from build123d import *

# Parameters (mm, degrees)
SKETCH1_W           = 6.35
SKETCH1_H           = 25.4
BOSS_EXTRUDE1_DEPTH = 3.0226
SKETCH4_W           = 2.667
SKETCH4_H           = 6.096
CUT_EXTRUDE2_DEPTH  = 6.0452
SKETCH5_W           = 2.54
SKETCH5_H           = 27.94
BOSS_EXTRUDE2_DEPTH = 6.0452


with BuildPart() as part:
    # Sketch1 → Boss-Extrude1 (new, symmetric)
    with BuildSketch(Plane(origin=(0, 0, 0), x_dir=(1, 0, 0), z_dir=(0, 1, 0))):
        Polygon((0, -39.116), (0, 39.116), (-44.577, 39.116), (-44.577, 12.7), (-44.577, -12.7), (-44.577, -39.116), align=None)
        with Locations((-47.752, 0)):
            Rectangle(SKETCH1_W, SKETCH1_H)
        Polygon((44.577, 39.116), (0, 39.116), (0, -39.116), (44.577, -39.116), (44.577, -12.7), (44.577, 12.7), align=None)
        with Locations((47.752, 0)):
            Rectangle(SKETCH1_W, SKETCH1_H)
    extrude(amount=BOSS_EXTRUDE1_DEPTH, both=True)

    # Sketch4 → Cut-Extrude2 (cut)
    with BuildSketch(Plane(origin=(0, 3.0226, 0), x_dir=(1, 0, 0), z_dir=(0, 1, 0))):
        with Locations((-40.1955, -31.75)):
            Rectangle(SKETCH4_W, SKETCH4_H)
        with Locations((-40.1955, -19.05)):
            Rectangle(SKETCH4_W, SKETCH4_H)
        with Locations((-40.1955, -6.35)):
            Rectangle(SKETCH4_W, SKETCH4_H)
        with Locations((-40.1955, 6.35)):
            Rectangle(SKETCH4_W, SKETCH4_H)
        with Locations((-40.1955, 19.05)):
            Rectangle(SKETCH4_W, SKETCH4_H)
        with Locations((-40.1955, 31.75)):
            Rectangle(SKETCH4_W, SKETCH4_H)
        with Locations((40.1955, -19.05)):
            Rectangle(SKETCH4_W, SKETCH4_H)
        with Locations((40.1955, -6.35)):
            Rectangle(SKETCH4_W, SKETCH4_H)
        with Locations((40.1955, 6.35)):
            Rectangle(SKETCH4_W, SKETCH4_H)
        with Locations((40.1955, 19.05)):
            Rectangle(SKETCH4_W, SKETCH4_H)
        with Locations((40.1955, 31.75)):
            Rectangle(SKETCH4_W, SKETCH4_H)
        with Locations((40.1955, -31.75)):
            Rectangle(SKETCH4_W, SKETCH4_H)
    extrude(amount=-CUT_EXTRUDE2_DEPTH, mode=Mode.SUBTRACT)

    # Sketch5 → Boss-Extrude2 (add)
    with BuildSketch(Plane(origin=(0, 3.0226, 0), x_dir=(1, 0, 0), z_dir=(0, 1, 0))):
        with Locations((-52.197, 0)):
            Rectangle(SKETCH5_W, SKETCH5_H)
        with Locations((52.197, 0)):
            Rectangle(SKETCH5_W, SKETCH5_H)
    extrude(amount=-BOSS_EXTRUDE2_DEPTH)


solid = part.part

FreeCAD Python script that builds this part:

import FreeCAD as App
import Part
import Sketcher

V = App.Vector
Q = App.Units.Quantity

doc = App.newDocument("Part")
body = doc.addObject("PartDesign::Body", "Body")

# Sketch on XZ plane
sketch1 = body.newObject("Sketcher::SketchObject", "Sketch")
sketch1.AttachmentSupport = (doc.getObject("XZ_Plane"), [""])
sketch1.MapMode = "FlatFace"
sketch1.addGeometry(Part.LineSegment(V(-45, -39, 0), V(-45, -13, 0)), False)
sketch1.addGeometry(Part.LineSegment(V(-45, -13, 0), V(-51, -13, 0)), False)
sketch1.addGeometry(Part.LineSegment(V(-51, -13, 0), V(-51, 13, 0)), False)
sketch1.addGeometry(Part.LineSegment(V(-51, 13, 0), V(-45, 13, 0)), False)
sketch1.addGeometry(Part.LineSegment(V(-45, 13, 0), V(-45, 39, 0)), False)
sketch1.addGeometry(Part.LineSegment(V(-45, 39, 0), V(45, 39, 0)), False)
sketch1.addGeometry(Part.LineSegment(V(45, 39, 0), V(45, 13, 0)), False)
sketch1.addGeometry(Part.LineSegment(V(45, 13, 0), V(51, 13, 0)), False)
sketch1.addGeometry(Part.LineSegment(V(51, 13, 0), V(51, -13, 0)), False)
sketch1.addGeometry(Part.LineSegment(V(51, -13, 0), V(45, -13, 0)), False)
sketch1.addGeometry(Part.LineSegment(V(45, -13, 0), V(45, -39, 0)), False)
sketch1.addGeometry(Part.LineSegment(V(45, -39, 0), V(-45, -39, 0)), False)
sketch1.addConstraint(Sketcher.Constraint("Coincident", 0, 2, 1, 1))
sketch1.addConstraint(Sketcher.Constraint("Coincident", 1, 2, 2, 1))
sketch1.addConstraint(Sketcher.Constraint("Coincident", 2, 2, 3, 1))
sketch1.addConstraint(Sketcher.Constraint("Coincident", 3, 2, 4, 1))
sketch1.addConstraint(Sketcher.Constraint("Coincident", 4, 2, 5, 1))
sketch1.addConstraint(Sketcher.Constraint("Coincident", 5, 2, 6, 1))
sketch1.addConstraint(Sketcher.Constraint("Coincident", 6, 2, 7, 1))
sketch1.addConstraint(Sketcher.Constraint("Coincident", 7, 2, 8, 1))
sketch1.addConstraint(Sketcher.Constraint("Coincident", 8, 2, 9, 1))
sketch1.addConstraint(Sketcher.Constraint("Coincident", 9, 2, 10, 1))
sketch1.addConstraint(Sketcher.Constraint("Coincident", 10, 2, 11, 1))
sketch1.addConstraint(Sketcher.Constraint("Coincident", 11, 2, 0, 1))
sketch1.addConstraint(Sketcher.Constraint("Vertical", 0))
sketch1.addConstraint(Sketcher.Constraint("Horizontal", 1))
sketch1.addConstraint(Sketcher.Constraint("Vertical", 2))
sketch1.addConstraint(Sketcher.Constraint("Horizontal", 3))
sketch1.addConstraint(Sketcher.Constraint("Vertical", 4))
sketch1.addConstraint(Sketcher.Constraint("Horizontal", 5))
sketch1.addConstraint(Sketcher.Constraint("Vertical", 6))
sketch1.addConstraint(Sketcher.Constraint("Horizontal", 7))
sketch1.addConstraint(Sketcher.Constraint("Vertical", 8))
sketch1.addConstraint(Sketcher.Constraint("Horizontal", 9))
sketch1.addConstraint(Sketcher.Constraint("Vertical", 10))
sketch1.addConstraint(Sketcher.Constraint("Horizontal", 11))
sketch1.addConstraint(Sketcher.Constraint("Symmetric", 0, 2, 6, 2, -1, 1))
sketch1.addConstraint(Sketcher.Constraint("Symmetric", 2, 2, 8, 2, -1, 1))
sketch1.addConstraint(Sketcher.Constraint("Symmetric", 4, 2, 10, 2, -1, 1))
sketch1.addConstraint(Sketcher.Constraint("Symmetric", 3, 2, 6, 2, -2))
sketch1.addConstraint(Sketcher.Constraint("DistanceY", 2, 1, 2, 2, Q("1 in")))
sketch1.addConstraint(Sketcher.Constraint("DistanceX", 1, 2, 1, 1, Q("0.25 in")))
sketch1.addConstraint(Sketcher.Constraint("DistanceX", 5, 1, 5, 2, Q("3.51 in")))
sketch1.addConstraint(Sketcher.Constraint("DistanceY", 0, 1, 0, 2, Q("1.04 in")))
pad1 = body.newObject("PartDesign::Pad", "Pad")
pad1.Profile = sketch1
pad1.Length = Q("0.238 in")
pad1.Midplane = True

# Sketch on XZ plane
sketch2 = body.newObject("Sketcher::SketchObject", "Sketch001")
sketch2.AttachmentSupport = (doc.getObject("XZ_Plane"), [""])
sketch2.MapMode = "FlatFace"
sketch2.AttachmentOffset = App.Placement(V(0, 0, -0.119 * 25.4), App.Rotation())
sketch2.addGeometry(Part.LineSegment(V(-41.5, 28.7, 0), V(-41.5, 34.8, 0)), False)
sketch2.addGeometry(Part.LineSegment(V(-41.5, 34.8, 0), V(-38.9, 34.8, 0)), False)
sketch2.addGeometry(Part.LineSegment(V(-38.9, 34.8, 0), V(-38.9, 28.7, 0)), False)
sketch2.addGeometry(Part.LineSegment(V(-38.9, 28.7, 0), V(-41.5, 28.7, 0)), False)
sketch2.addGeometry(Part.LineSegment(V(-41.5, 16, 0), V(-41.5, 22.1, 0)), False)
sketch2.addGeometry(Part.LineSegment(V(-41.5, 22.1, 0), V(-38.9, 22.1, 0)), False)
sketch2.addGeometry(Part.LineSegment(V(-38.9, 22.1, 0), V(-38.9, 16, 0)), False)
sketch2.addGeometry(Part.LineSegment(V(-38.9, 16, 0), V(-41.5, 16, 0)), False)
sketch2.addGeometry(Part.LineSegment(V(-41.5, 3.3, 0), V(-41.5, 9.4, 0)), False)
sketch2.addGeometry(Part.LineSegment(V(-41.5, 9.4, 0), V(-38.9, 9.4, 0)), False)
sketch2.addGeometry(Part.LineSegment(V(-38.9, 9.4, 0), V(-38.9, 3.3, 0)), False)
sketch2.addGeometry(Part.LineSegment(V(-38.9, 3.3, 0), V(-41.5, 3.3, 0)), False)
sketch2.addGeometry(Part.LineSegment(V(-41.5, -9.4, 0), V(-41.5, -3.3, 0)), False)
sketch2.addGeometry(Part.LineSegment(V(-41.5, -3.3, 0), V(-38.9, -3.3, 0)), False)
sketch2.addGeometry(Part.LineSegment(V(-38.9, -3.3, 0), V(-38.9, -9.4, 0)), False)
sketch2.addGeometry(Part.LineSegment(V(-38.9, -9.4, 0), V(-41.5, -9.4, 0)), False)
sketch2.addGeometry(Part.LineSegment(V(-41.5, -22.1, 0), V(-41.5, -16, 0)), False)
sketch2.addGeometry(Part.LineSegment(V(-41.5, -16, 0), V(-38.9, -16, 0)), False)
sketch2.addGeometry(Part.LineSegment(V(-38.9, -16, 0), V(-38.9, -22.1, 0)), False)
sketch2.addGeometry(Part.LineSegment(V(-38.9, -22.1, 0), V(-41.5, -22.1, 0)), False)
sketch2.addGeometry(Part.LineSegment(V(-41.5, -34.8, 0), V(-41.5, -28.7, 0)), False)
sketch2.addGeometry(Part.LineSegment(V(-41.5, -28.7, 0), V(-38.9, -28.7, 0)), False)
sketch2.addGeometry(Part.LineSegment(V(-38.9, -28.7, 0), V(-38.9, -34.8, 0)), False)
sketch2.addGeometry(Part.LineSegment(V(-38.9, -34.8, 0), V(-41.5, -34.8, 0)), False)
sketch2.addGeometry(Part.LineSegment(V(38.9, 16, 0), V(38.9, 22.1, 0)), False)
sketch2.addGeometry(Part.LineSegment(V(38.9, 22.1, 0), V(41.5, 22.1, 0)), False)
sketch2.addGeometry(Part.LineSegment(V(41.5, 22.1, 0), V(41.5, 16, 0)), False)
sketch2.addGeometry(Part.LineSegment(V(41.5, 16, 0), V(38.9, 16, 0)), False)
sketch2.addGeometry(Part.LineSegment(V(38.9, 3.3, 0), V(38.9, 9.4, 0)), False)
sketch2.addGeometry(Part.LineSegment(V(38.9, 9.4, 0), V(41.5, 9.4, 0)), False)
sketch2.addGeometry(Part.LineSegment(V(41.5, 9.4, 0), V(41.5, 3.3, 0)), False)
sketch2.addGeometry(Part.LineSegment(V(41.5, 3.3, 0), V(38.9, 3.3, 0)), False)
sketch2.addGeometry(Part.LineSegment(V(38.9, -9.4, 0), V(38.9, -3.3, 0)), False)
sketch2.addGeometry(Part.LineSegment(V(38.9, -3.3, 0), V(41.5, -3.3, 0)), False)
sketch2.addGeometry(Part.LineSegment(V(41.5, -3.3, 0), V(41.5, -9.4, 0)), False)
sketch2.addGeometry(Part.LineSegment(V(41.5, -9.4, 0), V(38.9, -9.4, 0)), False)
sketch2.addGeometry(Part.LineSegment(V(38.9, -22.1, 0), V(38.9, -16, 0)), False)
sketch2.addGeometry(Part.LineSegment(V(38.9, -16, 0), V(41.5, -16, 0)), False)
sketch2.addGeometry(Part.LineSegment(V(41.5, -16, 0), V(41.5, -22.1, 0)), False)
sketch2.addGeometry(Part.LineSegment(V(41.5, -22.1, 0), V(38.9, -22.1, 0)), False)
sketch2.addGeometry(Part.LineSegment(V(38.9, -34.8, 0), V(38.9, -28.7, 0)), False)
sketch2.addGeometry(Part.LineSegment(V(38.9, -28.7, 0), V(41.5, -28.7, 0)), False)
sketch2.addGeometry(Part.LineSegment(V(41.5, -28.7, 0), V(41.5, -34.8, 0)), False)
sketch2.addGeometry(Part.LineSegment(V(41.5, -34.8, 0), V(38.9, -34.8, 0)), False)
sketch2.addGeometry(Part.LineSegment(V(38.9, 28.7, 0), V(38.9, 34.8, 0)), False)
sketch2.addGeometry(Part.LineSegment(V(38.9, 34.8, 0), V(41.5, 34.8, 0)), False)
sketch2.addGeometry(Part.LineSegment(V(41.5, 34.8, 0), V(41.5, 28.7, 0)), False)
sketch2.addGeometry(Part.LineSegment(V(41.5, 28.7, 0), V(38.9, 28.7, 0)), False)
sketch2.addConstraint(Sketcher.Constraint("Coincident", 0, 2, 1, 1))
sketch2.addConstraint(Sketcher.Constraint("Coincident", 1, 2, 2, 1))
sketch2.addConstraint(Sketcher.Constraint("Coincident", 2, 2, 3, 1))
sketch2.addConstraint(Sketcher.Constraint("Coincident", 3, 2, 0, 1))
sketch2.addConstraint(Sketcher.Constraint("Coincident", 4, 2, 5, 1))
sketch2.addConstraint(Sketcher.Constraint("Coincident", 5, 2, 6, 1))
sketch2.addConstraint(Sketcher.Constraint("Coincident", 6, 2, 7, 1))
sketch2.addConstraint(Sketcher.Constraint("Coincident", 7, 2, 4, 1))
sketch2.addConstraint(Sketcher.Constraint("Coincident", 8, 2, 9, 1))
sketch2.addConstraint(Sketcher.Constraint("Coincident", 9, 2, 10, 1))
sketch2.addConstraint(Sketcher.Constraint("Coincident", 10, 2, 11, 1))
sketch2.addConstraint(Sketcher.Constraint("Coincident", 11, 2, 8, 1))
sketch2.addConstraint(Sketcher.Constraint("Coincident", 12, 2, 13, 1))
sketch2.addConstraint(Sketcher.Constraint("Coincident", 13, 2, 14, 1))
sketch2.addConstraint(Sketcher.Constraint("Coincident", 14, 2, 15, 1))
sketch2.addConstraint(Sketcher.Constraint("Coincident", 15, 2, 12, 1))
sketch2.addConstraint(Sketcher.Constraint("Coincident", 16, 2, 17, 1))
sketch2.addConstraint(Sketcher.Constraint("Coincident", 17, 2, 18, 1))
sketch2.addConstraint(Sketcher.Constraint("Coincident", 18, 2, 19, 1))
sketch2.addConstraint(Sketcher.Constraint("Coincident", 19, 2, 16, 1))
sketch2.addConstraint(Sketcher.Constraint("Coincident", 20, 2, 21, 1))
sketch2.addConstraint(Sketcher.Constraint("Coincident", 21, 2, 22, 1))
sketch2.addConstraint(Sketcher.Constraint("Coincident", 22, 2, 23, 1))
sketch2.addConstraint(Sketcher.Constraint("Coincident", 23, 2, 20, 1))
sketch2.addConstraint(Sketcher.Constraint("Coincident", 24, 2, 25, 1))
sketch2.addConstraint(Sketcher.Constraint("Coincident", 25, 2, 26, 1))
sketch2.addConstraint(Sketcher.Constraint("Coincident", 26, 2, 27, 1))
sketch2.addConstraint(Sketcher.Constraint("Coincident", 27, 2, 24, 1))
sketch2.addConstraint(Sketcher.Constraint("Coincident", 28, 2, 29, 1))
sketch2.addConstraint(Sketcher.Constraint("Coincident", 29, 2, 30, 1))
sketch2.addConstraint(Sketcher.Constraint("Coincident", 30, 2, 31, 1))
sketch2.addConstraint(Sketcher.Constraint("Coincident", 31, 2, 28, 1))
sketch2.addConstraint(Sketcher.Constraint("Coincident", 32, 2, 33, 1))
sketch2.addConstraint(Sketcher.Constraint("Coincident", 33, 2, 34, 1))
sketch2.addConstraint(Sketcher.Constraint("Coincident", 34, 2, 35, 1))
sketch2.addConstraint(Sketcher.Constraint("Coincident", 35, 2, 32, 1))
sketch2.addConstraint(Sketcher.Constraint("Coincident", 36, 2, 37, 1))
sketch2.addConstraint(Sketcher.Constraint("Coincident", 37, 2, 38, 1))
sketch2.addConstraint(Sketcher.Constraint("Coincident", 38, 2, 39, 1))
sketch2.addConstraint(Sketcher.Constraint("Coincident", 39, 2, 36, 1))
sketch2.addConstraint(Sketcher.Constraint("Coincident", 40, 2, 41, 1))
sketch2.addConstraint(Sketcher.Constraint("Coincident", 41, 2, 42, 1))
sketch2.addConstraint(Sketcher.Constraint("Coincident", 42, 2, 43, 1))
sketch2.addConstraint(Sketcher.Constraint("Coincident", 43, 2, 40, 1))
sketch2.addConstraint(Sketcher.Constraint("Coincident", 44, 2, 45, 1))
sketch2.addConstraint(Sketcher.Constraint("Coincident", 45, 2, 46, 1))
sketch2.addConstraint(Sketcher.Constraint("Coincident", 46, 2, 47, 1))
sketch2.addConstraint(Sketcher.Constraint("Coincident", 47, 2, 44, 1))
sketch2.addConstraint(Sketcher.Constraint("Vertical", 0))
sketch2.addConstraint(Sketcher.Constraint("Horizontal", 1))
sketch2.addConstraint(Sketcher.Constraint("Vertical", 2))
sketch2.addConstraint(Sketcher.Constraint("Horizontal", 3))
sketch2.addConstraint(Sketcher.Constraint("Vertical", 4))
sketch2.addConstraint(Sketcher.Constraint("Horizontal", 5))
sketch2.addConstraint(Sketcher.Constraint("Vertical", 6))
sketch2.addConstraint(Sketcher.Constraint("Horizontal", 7))
sketch2.addConstraint(Sketcher.Constraint("Vertical", 8))
sketch2.addConstraint(Sketcher.Constraint("Horizontal", 9))
sketch2.addConstraint(Sketcher.Constraint("Vertical", 10))
sketch2.addConstraint(Sketcher.Constraint("Horizontal", 11))
sketch2.addConstraint(Sketcher.Constraint("Vertical", 12))
sketch2.addConstraint(Sketcher.Constraint("Horizontal", 13))
sketch2.addConstraint(Sketcher.Constraint("Vertical", 14))
sketch2.addConstraint(Sketcher.Constraint("Horizontal", 15))
sketch2.addConstraint(Sketcher.Constraint("Vertical", 16))
sketch2.addConstraint(Sketcher.Constraint("Horizontal", 17))
sketch2.addConstraint(Sketcher.Constraint("Vertical", 18))
sketch2.addConstraint(Sketcher.Constraint("Horizontal", 19))
sketch2.addConstraint(Sketcher.Constraint("Vertical", 20))
sketch2.addConstraint(Sketcher.Constraint("Horizontal", 21))
sketch2.addConstraint(Sketcher.Constraint("Vertical", 22))
sketch2.addConstraint(Sketcher.Constraint("Horizontal", 23))
sketch2.addConstraint(Sketcher.Constraint("Vertical", 24))
sketch2.addConstraint(Sketcher.Constraint("Horizontal", 25))
sketch2.addConstraint(Sketcher.Constraint("Vertical", 26))
sketch2.addConstraint(Sketcher.Constraint("Horizontal", 27))
sketch2.addConstraint(Sketcher.Constraint("Vertical", 28))
sketch2.addConstraint(Sketcher.Constraint("Horizontal", 29))
sketch2.addConstraint(Sketcher.Constraint("Vertical", 30))
sketch2.addConstraint(Sketcher.Constraint("Horizontal", 31))
sketch2.addConstraint(Sketcher.Constraint("Vertical", 32))
sketch2.addConstraint(Sketcher.Constraint("Horizontal", 33))
sketch2.addConstraint(Sketcher.Constraint("Vertical", 34))
sketch2.addConstraint(Sketcher.Constraint("Horizontal", 35))
sketch2.addConstraint(Sketcher.Constraint("Vertical", 36))
sketch2.addConstraint(Sketcher.Constraint("Horizontal", 37))
sketch2.addConstraint(Sketcher.Constraint("Vertical", 38))
sketch2.addConstraint(Sketcher.Constraint("Horizontal", 39))
sketch2.addConstraint(Sketcher.Constraint("Vertical", 40))
sketch2.addConstraint(Sketcher.Constraint("Horizontal", 41))
sketch2.addConstraint(Sketcher.Constraint("Vertical", 42))
sketch2.addConstraint(Sketcher.Constraint("Horizontal", 43))
sketch2.addConstraint(Sketcher.Constraint("Vertical", 44))
sketch2.addConstraint(Sketcher.Constraint("Horizontal", 45))
sketch2.addConstraint(Sketcher.Constraint("Vertical", 46))
sketch2.addConstraint(Sketcher.Constraint("Horizontal", 47))
sketch2.addConstraint(Sketcher.Constraint("Symmetric", 18, 2, 24, 2, -1, 1))
sketch2.addConstraint(Sketcher.Constraint("Symmetric", 16, 2, 26, 2, -1, 1))
sketch2.addConstraint(Sketcher.Constraint("Symmetric", 14, 2, 28, 2, -1, 1))
sketch2.addConstraint(Sketcher.Constraint("Symmetric", 12, 2, 30, 2, -1, 1))
sketch2.addConstraint(Sketcher.Constraint("Symmetric", 10, 2, 32, 2, -1, 1))
sketch2.addConstraint(Sketcher.Constraint("Symmetric", 8, 2, 34, 2, -1, 1))
sketch2.addConstraint(Sketcher.Constraint("Symmetric", 6, 2, 36, 2, -1, 1))
sketch2.addConstraint(Sketcher.Constraint("Symmetric", 4, 2, 38, 2, -1, 1))
sketch2.addConstraint(Sketcher.Constraint("Symmetric", 2, 2, 40, 2, -1, 1))
sketch2.addConstraint(Sketcher.Constraint("Symmetric", 0, 2, 42, 2, -1, 1))
sketch2.addConstraint(Sketcher.Constraint("Symmetric", 22, 2, 44, 2, -1, 1))
sketch2.addConstraint(Sketcher.Constraint("Symmetric", 20, 2, 46, 2, -1, 1))
sketch2.addConstraint(Sketcher.Constraint("Symmetric", 5, 2, 24, 2, -2))
sketch2.addConstraint(Sketcher.Constraint("Symmetric", 7, 2, 26, 2, -2))
sketch2.addConstraint(Sketcher.Constraint("Symmetric", 9, 2, 28, 2, -2))
sketch2.addConstraint(Sketcher.Constraint("Symmetric", 11, 2, 30, 2, -2))
sketch2.addConstraint(Sketcher.Constraint("Symmetric", 21, 2, 40, 2, -2))
sketch2.addConstraint(Sketcher.Constraint("Symmetric", 23, 2, 42, 2, -2))
sketch2.addConstraint(Sketcher.Constraint("Vertical", 3, 2, 4, 2))
sketch2.addConstraint(Sketcher.Constraint("Vertical", 2, 2, 5, 2))
sketch2.addConstraint(Sketcher.Constraint("Vertical", 7, 2, 8, 2))
sketch2.addConstraint(Sketcher.Constraint("Vertical", 6, 2, 9, 2))
sketch2.addConstraint(Sketcher.Constraint("Equal", 2, 4))
sketch2.addConstraint(Sketcher.Constraint("Equal", 6, 8))
sketch2.addConstraint(Sketcher.Constraint("DistanceY", 28, 2, 44, 2, Q("1 in")))
sketch2.addConstraint(Sketcher.Constraint("DistanceY", 0, 1, 0, 2, Q("0.24 in")))
sketch2.addConstraint(Sketcher.Constraint("DistanceY", 4, 2, 0, 2, Q("0.5 in")))
sketch2.addConstraint(Sketcher.Constraint("DistanceY", 12, 2, 8, 2, Q("0.5 in")))
sketch2.addConstraint(Sketcher.Constraint("DistanceX", 1, 1, 1, 2, Q("0.105 in")))
sketch2.addConstraint(Sketcher.Constraint("DistanceX", 1, 2, -1, 1, Q("1.53 in")))
pocket1 = body.newObject("PartDesign::Pocket", "Pocket")
pocket1.Profile = sketch2
pocket1.Length = Q("0.238 in")
pocket1.Reversed = True

# Sketch on XZ plane
sketch3 = body.newObject("Sketcher::SketchObject", "Sketch002")
sketch3.AttachmentSupport = (doc.getObject("XZ_Plane"), [""])
sketch3.MapMode = "FlatFace"
sketch3.AttachmentOffset = App.Placement(V(0, 0, -0.119 * 25.4), App.Rotation())
sketch3.addGeometry(Part.LineSegment(V(-53.5, -14, 0), V(-53.5, 14, 0)), False)
sketch3.addGeometry(Part.LineSegment(V(-53.5, 14, 0), V(-50.9, 14, 0)), False)
sketch3.addGeometry(Part.LineSegment(V(-50.9, 14, 0), V(-50.9, -14, 0)), False)
sketch3.addGeometry(Part.LineSegment(V(-50.9, -14, 0), V(-53.5, -14, 0)), False)
sketch3.addGeometry(Part.LineSegment(V(50.9, -14, 0), V(50.9, 14, 0)), False)
sketch3.addGeometry(Part.LineSegment(V(50.9, 14, 0), V(53.5, 14, 0)), False)
sketch3.addGeometry(Part.LineSegment(V(53.5, 14, 0), V(53.5, -14, 0)), False)
sketch3.addGeometry(Part.LineSegment(V(53.5, -14, 0), V(50.9, -14, 0)), False)
sketch3.addConstraint(Sketcher.Constraint("Coincident", 0, 2, 1, 1))
sketch3.addConstraint(Sketcher.Constraint("Coincident", 1, 2, 2, 1))
sketch3.addConstraint(Sketcher.Constraint("Coincident", 2, 2, 3, 1))
sketch3.addConstraint(Sketcher.Constraint("Coincident", 3, 2, 0, 1))
sketch3.addConstraint(Sketcher.Constraint("Coincident", 4, 2, 5, 1))
sketch3.addConstraint(Sketcher.Constraint("Coincident", 5, 2, 6, 1))
sketch3.addConstraint(Sketcher.Constraint("Coincident", 6, 2, 7, 1))
sketch3.addConstraint(Sketcher.Constraint("Coincident", 7, 2, 4, 1))
sketch3.addConstraint(Sketcher.Constraint("Vertical", 0))
sketch3.addConstraint(Sketcher.Constraint("Horizontal", 1))
sketch3.addConstraint(Sketcher.Constraint("Vertical", 2))
sketch3.addConstraint(Sketcher.Constraint("Horizontal", 3))
sketch3.addConstraint(Sketcher.Constraint("Vertical", 4))
sketch3.addConstraint(Sketcher.Constraint("Horizontal", 5))
sketch3.addConstraint(Sketcher.Constraint("Vertical", 6))
sketch3.addConstraint(Sketcher.Constraint("Horizontal", 7))
sketch3.addConstraint(Sketcher.Constraint("Symmetric", 2, 2, 4, 2, -1, 1))
sketch3.addConstraint(Sketcher.Constraint("Symmetric", 0, 2, 6, 2, -1, 1))
sketch3.addConstraint(Sketcher.Constraint("Horizontal", 1, 2, 4, 2))
sketch3.addConstraint(Sketcher.Constraint("DistanceX", 1, 1, 1, 2, Q("0.1 in")))
sketch3.addConstraint(Sketcher.Constraint("DistanceY", 0, 1, 0, 2, Q("1.1 in")))
sketch3.addConstraint(Sketcher.Constraint("DistanceX", 1, 2, 4, 2, Q("4.01 in")))
pad2 = body.newObject("PartDesign::Pad", "Pad001")
pad2.Profile = sketch3
pad2.Length = Q("0.238 in")

doc.recompute()
